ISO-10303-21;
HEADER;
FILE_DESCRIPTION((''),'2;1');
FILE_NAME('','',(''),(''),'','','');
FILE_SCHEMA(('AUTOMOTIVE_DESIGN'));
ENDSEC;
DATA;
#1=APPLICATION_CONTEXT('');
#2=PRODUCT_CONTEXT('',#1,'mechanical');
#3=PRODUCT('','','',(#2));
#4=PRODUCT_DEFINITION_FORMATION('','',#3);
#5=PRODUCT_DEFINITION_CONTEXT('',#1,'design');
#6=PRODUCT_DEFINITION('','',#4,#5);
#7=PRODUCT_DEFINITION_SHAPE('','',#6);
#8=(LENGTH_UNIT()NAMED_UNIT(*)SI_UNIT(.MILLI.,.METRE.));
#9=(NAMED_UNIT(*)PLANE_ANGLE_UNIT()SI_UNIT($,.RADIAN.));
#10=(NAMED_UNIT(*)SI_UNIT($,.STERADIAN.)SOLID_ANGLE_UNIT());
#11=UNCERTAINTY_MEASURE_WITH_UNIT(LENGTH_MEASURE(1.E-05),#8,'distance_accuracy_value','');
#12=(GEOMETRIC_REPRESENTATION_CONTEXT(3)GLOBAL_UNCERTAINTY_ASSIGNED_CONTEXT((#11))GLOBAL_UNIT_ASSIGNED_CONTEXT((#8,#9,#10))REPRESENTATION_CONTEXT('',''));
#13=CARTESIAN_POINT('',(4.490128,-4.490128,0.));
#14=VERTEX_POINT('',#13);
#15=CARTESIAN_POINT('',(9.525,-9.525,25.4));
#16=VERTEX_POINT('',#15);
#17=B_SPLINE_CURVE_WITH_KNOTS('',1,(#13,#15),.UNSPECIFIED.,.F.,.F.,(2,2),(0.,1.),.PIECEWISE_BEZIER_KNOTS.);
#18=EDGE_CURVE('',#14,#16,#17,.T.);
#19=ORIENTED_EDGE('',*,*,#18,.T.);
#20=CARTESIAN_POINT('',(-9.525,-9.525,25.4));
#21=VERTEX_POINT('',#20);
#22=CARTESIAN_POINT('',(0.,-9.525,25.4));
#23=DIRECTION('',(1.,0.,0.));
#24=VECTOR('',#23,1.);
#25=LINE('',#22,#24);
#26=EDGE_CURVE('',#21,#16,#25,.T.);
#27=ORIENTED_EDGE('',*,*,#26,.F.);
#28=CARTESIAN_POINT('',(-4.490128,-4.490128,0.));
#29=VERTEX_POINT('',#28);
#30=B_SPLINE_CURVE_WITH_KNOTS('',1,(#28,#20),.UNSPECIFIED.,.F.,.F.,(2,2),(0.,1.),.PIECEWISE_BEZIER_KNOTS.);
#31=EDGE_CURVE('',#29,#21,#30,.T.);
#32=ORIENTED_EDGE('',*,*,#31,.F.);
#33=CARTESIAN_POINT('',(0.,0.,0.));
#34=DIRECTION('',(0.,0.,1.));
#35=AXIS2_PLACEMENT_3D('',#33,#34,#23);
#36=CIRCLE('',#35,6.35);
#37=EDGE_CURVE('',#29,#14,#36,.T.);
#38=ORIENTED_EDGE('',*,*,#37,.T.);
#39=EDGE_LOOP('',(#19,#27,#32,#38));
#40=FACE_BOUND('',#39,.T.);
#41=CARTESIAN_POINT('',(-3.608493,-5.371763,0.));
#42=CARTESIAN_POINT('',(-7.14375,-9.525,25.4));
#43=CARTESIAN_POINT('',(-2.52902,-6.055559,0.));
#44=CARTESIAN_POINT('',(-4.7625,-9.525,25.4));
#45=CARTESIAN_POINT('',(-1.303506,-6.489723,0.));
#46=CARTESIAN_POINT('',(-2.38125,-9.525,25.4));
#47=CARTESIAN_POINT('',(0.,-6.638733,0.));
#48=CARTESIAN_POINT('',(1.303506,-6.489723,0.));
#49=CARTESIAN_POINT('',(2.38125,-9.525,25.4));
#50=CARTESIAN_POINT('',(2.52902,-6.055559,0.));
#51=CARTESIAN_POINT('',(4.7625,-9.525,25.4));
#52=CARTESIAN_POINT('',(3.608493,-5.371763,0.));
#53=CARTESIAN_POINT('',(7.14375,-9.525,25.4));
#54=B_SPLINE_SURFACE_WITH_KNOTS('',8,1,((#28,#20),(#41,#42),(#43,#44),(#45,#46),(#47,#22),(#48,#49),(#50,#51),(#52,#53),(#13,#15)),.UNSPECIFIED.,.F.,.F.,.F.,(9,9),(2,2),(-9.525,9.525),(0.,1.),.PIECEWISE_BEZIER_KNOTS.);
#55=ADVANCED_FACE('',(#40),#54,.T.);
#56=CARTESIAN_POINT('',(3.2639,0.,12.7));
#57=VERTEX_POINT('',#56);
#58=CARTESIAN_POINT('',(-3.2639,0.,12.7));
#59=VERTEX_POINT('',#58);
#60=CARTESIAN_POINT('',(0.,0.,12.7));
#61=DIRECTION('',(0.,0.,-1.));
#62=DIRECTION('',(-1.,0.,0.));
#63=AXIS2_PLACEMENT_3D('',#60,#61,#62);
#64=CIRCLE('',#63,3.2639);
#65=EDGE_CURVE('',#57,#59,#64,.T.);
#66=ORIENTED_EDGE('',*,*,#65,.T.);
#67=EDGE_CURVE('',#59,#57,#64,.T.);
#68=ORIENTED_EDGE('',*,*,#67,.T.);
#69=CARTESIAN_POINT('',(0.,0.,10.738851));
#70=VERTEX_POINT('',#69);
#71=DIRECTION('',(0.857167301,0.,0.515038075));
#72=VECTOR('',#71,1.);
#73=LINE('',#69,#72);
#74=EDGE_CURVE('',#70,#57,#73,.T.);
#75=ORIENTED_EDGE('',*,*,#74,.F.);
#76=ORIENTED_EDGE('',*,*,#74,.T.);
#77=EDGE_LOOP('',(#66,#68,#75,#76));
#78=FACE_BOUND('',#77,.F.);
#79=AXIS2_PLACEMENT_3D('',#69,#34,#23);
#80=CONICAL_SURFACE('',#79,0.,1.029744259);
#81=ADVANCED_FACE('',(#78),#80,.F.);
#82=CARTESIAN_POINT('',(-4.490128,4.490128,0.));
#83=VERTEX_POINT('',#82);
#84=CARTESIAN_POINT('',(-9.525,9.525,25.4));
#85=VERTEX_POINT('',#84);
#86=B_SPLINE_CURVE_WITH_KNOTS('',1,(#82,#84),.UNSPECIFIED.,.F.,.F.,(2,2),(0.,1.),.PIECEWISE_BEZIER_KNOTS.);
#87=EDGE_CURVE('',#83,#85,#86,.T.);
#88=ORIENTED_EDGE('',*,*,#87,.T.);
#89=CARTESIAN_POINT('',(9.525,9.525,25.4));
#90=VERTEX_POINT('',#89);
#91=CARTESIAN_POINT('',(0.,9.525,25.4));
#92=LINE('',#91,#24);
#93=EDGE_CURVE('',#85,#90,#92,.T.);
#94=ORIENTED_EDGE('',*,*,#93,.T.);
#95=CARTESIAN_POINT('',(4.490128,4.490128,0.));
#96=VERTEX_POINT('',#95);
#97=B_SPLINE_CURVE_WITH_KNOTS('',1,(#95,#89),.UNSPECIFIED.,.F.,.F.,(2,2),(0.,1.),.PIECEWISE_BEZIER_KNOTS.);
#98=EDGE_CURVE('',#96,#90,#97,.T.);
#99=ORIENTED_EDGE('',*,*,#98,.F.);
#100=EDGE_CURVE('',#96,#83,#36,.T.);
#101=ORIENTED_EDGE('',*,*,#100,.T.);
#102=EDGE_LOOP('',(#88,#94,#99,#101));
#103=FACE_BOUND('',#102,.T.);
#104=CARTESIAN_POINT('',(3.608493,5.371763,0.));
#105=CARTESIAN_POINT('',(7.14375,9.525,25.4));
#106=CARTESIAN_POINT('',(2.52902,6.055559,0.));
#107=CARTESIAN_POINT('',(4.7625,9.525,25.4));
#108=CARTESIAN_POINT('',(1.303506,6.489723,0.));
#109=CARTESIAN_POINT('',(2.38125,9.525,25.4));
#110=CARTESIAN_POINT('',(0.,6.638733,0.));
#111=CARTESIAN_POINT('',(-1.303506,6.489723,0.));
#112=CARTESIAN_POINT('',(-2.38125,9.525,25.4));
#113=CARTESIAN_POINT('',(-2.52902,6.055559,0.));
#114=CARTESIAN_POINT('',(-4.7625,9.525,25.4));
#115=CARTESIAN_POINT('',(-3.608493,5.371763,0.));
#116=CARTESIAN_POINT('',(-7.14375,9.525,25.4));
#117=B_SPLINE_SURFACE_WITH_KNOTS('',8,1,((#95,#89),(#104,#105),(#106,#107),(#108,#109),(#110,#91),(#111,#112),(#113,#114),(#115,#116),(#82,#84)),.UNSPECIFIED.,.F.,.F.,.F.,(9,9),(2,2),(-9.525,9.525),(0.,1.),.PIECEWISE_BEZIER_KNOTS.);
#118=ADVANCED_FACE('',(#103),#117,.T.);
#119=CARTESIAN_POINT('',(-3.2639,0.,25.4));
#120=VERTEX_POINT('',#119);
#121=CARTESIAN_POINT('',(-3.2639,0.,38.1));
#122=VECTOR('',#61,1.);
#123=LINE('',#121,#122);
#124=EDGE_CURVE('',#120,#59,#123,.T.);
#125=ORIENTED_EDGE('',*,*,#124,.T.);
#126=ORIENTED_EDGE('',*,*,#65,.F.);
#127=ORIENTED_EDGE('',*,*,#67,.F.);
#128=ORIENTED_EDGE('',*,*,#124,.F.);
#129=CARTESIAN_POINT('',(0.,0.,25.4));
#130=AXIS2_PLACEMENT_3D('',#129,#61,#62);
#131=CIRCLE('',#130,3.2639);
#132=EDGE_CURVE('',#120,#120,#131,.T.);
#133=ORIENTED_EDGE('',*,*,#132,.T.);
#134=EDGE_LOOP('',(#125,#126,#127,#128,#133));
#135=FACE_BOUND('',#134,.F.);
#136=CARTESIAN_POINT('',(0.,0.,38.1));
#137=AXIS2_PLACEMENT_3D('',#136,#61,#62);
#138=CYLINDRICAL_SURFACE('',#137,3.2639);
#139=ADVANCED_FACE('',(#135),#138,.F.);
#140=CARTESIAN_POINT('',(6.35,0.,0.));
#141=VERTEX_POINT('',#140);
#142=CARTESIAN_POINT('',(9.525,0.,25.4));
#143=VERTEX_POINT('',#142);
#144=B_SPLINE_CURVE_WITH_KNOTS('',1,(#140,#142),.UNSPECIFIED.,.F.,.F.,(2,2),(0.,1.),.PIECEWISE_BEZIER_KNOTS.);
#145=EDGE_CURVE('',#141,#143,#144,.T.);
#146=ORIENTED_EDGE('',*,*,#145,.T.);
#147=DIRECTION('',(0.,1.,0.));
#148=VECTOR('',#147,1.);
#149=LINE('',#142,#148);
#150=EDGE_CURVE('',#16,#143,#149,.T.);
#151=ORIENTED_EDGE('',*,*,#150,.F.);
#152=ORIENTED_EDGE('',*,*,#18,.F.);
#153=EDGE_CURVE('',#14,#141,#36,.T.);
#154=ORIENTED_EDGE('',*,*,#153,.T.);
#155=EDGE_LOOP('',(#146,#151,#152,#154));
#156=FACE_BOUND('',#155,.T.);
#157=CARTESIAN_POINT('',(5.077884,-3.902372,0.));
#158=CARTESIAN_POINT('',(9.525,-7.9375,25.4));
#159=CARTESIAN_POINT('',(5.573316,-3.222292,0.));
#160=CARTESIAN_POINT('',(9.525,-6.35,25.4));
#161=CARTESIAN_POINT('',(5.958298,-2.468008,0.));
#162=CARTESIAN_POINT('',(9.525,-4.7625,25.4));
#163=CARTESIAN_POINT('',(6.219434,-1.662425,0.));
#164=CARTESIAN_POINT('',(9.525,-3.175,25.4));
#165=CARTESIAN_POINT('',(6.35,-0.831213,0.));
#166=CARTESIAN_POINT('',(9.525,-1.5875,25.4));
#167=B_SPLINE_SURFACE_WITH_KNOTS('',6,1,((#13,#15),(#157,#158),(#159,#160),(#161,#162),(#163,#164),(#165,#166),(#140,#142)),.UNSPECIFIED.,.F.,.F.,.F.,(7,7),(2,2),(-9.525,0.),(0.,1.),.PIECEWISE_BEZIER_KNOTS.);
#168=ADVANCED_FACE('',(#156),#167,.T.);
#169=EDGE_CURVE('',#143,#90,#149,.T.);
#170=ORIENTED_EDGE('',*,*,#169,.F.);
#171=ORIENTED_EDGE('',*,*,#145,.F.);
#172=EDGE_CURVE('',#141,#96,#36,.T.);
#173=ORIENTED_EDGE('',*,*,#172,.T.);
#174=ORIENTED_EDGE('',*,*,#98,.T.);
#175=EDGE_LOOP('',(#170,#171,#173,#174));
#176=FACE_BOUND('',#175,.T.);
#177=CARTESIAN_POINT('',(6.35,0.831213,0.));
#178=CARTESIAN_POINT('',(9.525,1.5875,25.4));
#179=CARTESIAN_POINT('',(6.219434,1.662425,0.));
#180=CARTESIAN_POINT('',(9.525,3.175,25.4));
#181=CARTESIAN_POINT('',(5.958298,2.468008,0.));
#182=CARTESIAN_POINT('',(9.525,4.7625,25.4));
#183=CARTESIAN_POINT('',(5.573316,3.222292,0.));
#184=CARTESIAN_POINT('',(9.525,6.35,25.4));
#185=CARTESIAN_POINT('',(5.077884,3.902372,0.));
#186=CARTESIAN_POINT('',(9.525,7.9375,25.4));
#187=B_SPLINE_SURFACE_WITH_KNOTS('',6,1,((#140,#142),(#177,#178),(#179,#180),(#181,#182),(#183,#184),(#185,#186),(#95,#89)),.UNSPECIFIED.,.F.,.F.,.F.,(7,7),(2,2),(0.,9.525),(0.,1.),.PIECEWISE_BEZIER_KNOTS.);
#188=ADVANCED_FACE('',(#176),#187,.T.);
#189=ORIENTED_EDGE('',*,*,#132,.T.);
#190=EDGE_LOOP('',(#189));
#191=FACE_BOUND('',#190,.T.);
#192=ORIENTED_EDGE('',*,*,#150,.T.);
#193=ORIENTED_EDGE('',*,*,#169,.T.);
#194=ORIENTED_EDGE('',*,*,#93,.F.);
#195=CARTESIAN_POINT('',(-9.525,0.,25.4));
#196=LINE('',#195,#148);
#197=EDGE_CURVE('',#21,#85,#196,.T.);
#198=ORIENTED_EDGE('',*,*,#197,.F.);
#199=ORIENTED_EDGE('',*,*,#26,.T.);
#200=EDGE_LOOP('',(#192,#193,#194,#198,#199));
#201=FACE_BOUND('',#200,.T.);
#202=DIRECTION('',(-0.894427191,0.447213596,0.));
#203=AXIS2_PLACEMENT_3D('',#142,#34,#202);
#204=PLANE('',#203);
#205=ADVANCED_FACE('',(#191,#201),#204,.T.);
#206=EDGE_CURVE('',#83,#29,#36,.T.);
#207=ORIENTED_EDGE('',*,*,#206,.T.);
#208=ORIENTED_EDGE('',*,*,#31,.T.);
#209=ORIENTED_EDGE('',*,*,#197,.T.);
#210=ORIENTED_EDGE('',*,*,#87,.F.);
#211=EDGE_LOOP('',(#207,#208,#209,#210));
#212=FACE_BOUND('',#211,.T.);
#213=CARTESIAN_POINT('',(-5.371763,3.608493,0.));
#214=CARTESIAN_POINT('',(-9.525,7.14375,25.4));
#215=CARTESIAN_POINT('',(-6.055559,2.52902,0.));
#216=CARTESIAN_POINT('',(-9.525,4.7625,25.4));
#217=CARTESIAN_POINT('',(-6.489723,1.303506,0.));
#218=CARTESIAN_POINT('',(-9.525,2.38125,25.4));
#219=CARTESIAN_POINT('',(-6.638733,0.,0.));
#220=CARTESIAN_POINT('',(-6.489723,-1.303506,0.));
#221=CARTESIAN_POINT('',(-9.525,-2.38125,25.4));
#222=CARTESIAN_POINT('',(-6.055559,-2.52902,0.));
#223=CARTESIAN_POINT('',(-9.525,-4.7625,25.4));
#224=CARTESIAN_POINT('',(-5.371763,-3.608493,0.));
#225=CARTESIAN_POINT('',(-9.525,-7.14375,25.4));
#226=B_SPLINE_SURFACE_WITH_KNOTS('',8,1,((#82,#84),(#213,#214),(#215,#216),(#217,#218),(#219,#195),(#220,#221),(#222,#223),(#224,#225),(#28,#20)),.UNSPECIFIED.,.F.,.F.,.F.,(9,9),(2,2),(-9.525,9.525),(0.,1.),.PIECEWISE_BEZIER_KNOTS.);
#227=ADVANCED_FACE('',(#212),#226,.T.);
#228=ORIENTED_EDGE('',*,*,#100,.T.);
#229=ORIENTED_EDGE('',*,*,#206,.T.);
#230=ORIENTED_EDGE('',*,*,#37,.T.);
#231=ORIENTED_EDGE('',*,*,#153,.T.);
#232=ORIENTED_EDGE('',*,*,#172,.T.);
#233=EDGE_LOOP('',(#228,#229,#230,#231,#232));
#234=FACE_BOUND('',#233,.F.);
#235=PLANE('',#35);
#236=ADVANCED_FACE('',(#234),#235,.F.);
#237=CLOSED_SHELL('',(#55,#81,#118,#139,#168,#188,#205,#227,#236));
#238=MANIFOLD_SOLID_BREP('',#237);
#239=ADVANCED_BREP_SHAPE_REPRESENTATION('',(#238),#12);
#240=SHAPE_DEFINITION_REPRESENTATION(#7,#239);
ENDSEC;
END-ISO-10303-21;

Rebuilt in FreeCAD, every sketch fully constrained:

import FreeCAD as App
import Part
import Sketcher

V = App.Vector
Q = App.Units.Quantity


def add_polygon(sketch, points):
    """Adds a closed chain of lines whose ends are joined by coincident constraints."""
    first, n = sketch.GeometryCount, len(points)
    for a, b in zip(points, points[1:] + points[:1]):
        sketch.addGeometry(Part.LineSegment(App.Vector(*a, 0), App.Vector(*b, 0)), False)
    for i in range(n):
        sketch.addConstraint(Sketcher.Constraint("Coincident", first + i, 2, first + (i + 1) % n, 1))

doc = App.newDocument("Part")
body = doc.addObject("PartDesign::Body", "Body")

# Sketch on XY plane
sketch1 = body.newObject("Sketcher::SketchObject", "Sketch")
sketch1.AttachmentSupport = (doc.getObject("XY_Plane"), [""])
sketch1.MapMode = "FlatFace"
sketch1.addGeometry(Part.Circle(V(0, 0, 0), V(0, 0, 1), 6), False)
sketch1.addConstraint([
    Sketcher.Constraint("Coincident", 0, 3, -1, 1),
    Sketcher.Constraint("Diameter", 0, Q("0.5 in")),
])

# Sketch on XY plane
sketch2 = body.newObject("Sketcher::SketchObject", "Sketch001")
sketch2.AttachmentSupport = (doc.getObject("XY_Plane"), [""])
sketch2.MapMode = "FlatFace"
sketch2.AttachmentOffset = App.Placement(V(0, 0, 1 * 25.4), App.Rotation())
add_polygon(sketch2, [(-10, 10), (-10, -10), (10, -10), (10, 10)])  # lines 0-3
sketch2.addConstraint([
    Sketcher.Constraint("Vertical", 0),
    Sketcher.Constraint("Horizontal", 1),
    Sketcher.Constraint("Vertical", 2),
    Sketcher.Constraint("Horizontal", 3),
    Sketcher.Constraint("Symmetric", 0, 2, 2, 2, -1, 1),
    Sketcher.Constraint("Equal", 3, 0),
    Sketcher.Constraint("DistanceX", 1, 1, 1, 2, Q("0.75 in")),
])

additiveloft = body.newObject("PartDesign::AdditiveLoft", "AdditiveLoft")
additiveloft.Profile = sketch1
additiveloft.Sections = [sketch2]

# Sketch on XY plane
sketch3 = body.newObject("Sketcher::SketchObject", "Sketch002")
sketch3.AttachmentSupport = (doc.getObject("XY_Plane"), [""])
sketch3.MapMode = "FlatFace"
sketch3.AttachmentOffset = App.Placement(V(0, 0, 1 * 25.4), App.Rotation())
sketch3.addGeometry(Part.Circle(V(0, 0, 0), V(0, 0, 1), 3.3), False)
sketch3.addConstraint([
    Sketcher.Constraint("Coincident", 0, 3, -1, 1),
    Sketcher.Constraint("Diameter", 0, Q("0.257 in")),
])
doc.recompute()
hole = body.newObject("PartDesign::Hole", "Hole")
hole.Profile = sketch3
hole.ThreadType = "None"
hole.Diameter = Q("0.257 in")
hole.DepthType = "Dimension"
hole.Depth = Q("0.5 in")
hole.DrillPoint = "Angled"
hole.DrillPointAngle = 118

doc.recompute()
